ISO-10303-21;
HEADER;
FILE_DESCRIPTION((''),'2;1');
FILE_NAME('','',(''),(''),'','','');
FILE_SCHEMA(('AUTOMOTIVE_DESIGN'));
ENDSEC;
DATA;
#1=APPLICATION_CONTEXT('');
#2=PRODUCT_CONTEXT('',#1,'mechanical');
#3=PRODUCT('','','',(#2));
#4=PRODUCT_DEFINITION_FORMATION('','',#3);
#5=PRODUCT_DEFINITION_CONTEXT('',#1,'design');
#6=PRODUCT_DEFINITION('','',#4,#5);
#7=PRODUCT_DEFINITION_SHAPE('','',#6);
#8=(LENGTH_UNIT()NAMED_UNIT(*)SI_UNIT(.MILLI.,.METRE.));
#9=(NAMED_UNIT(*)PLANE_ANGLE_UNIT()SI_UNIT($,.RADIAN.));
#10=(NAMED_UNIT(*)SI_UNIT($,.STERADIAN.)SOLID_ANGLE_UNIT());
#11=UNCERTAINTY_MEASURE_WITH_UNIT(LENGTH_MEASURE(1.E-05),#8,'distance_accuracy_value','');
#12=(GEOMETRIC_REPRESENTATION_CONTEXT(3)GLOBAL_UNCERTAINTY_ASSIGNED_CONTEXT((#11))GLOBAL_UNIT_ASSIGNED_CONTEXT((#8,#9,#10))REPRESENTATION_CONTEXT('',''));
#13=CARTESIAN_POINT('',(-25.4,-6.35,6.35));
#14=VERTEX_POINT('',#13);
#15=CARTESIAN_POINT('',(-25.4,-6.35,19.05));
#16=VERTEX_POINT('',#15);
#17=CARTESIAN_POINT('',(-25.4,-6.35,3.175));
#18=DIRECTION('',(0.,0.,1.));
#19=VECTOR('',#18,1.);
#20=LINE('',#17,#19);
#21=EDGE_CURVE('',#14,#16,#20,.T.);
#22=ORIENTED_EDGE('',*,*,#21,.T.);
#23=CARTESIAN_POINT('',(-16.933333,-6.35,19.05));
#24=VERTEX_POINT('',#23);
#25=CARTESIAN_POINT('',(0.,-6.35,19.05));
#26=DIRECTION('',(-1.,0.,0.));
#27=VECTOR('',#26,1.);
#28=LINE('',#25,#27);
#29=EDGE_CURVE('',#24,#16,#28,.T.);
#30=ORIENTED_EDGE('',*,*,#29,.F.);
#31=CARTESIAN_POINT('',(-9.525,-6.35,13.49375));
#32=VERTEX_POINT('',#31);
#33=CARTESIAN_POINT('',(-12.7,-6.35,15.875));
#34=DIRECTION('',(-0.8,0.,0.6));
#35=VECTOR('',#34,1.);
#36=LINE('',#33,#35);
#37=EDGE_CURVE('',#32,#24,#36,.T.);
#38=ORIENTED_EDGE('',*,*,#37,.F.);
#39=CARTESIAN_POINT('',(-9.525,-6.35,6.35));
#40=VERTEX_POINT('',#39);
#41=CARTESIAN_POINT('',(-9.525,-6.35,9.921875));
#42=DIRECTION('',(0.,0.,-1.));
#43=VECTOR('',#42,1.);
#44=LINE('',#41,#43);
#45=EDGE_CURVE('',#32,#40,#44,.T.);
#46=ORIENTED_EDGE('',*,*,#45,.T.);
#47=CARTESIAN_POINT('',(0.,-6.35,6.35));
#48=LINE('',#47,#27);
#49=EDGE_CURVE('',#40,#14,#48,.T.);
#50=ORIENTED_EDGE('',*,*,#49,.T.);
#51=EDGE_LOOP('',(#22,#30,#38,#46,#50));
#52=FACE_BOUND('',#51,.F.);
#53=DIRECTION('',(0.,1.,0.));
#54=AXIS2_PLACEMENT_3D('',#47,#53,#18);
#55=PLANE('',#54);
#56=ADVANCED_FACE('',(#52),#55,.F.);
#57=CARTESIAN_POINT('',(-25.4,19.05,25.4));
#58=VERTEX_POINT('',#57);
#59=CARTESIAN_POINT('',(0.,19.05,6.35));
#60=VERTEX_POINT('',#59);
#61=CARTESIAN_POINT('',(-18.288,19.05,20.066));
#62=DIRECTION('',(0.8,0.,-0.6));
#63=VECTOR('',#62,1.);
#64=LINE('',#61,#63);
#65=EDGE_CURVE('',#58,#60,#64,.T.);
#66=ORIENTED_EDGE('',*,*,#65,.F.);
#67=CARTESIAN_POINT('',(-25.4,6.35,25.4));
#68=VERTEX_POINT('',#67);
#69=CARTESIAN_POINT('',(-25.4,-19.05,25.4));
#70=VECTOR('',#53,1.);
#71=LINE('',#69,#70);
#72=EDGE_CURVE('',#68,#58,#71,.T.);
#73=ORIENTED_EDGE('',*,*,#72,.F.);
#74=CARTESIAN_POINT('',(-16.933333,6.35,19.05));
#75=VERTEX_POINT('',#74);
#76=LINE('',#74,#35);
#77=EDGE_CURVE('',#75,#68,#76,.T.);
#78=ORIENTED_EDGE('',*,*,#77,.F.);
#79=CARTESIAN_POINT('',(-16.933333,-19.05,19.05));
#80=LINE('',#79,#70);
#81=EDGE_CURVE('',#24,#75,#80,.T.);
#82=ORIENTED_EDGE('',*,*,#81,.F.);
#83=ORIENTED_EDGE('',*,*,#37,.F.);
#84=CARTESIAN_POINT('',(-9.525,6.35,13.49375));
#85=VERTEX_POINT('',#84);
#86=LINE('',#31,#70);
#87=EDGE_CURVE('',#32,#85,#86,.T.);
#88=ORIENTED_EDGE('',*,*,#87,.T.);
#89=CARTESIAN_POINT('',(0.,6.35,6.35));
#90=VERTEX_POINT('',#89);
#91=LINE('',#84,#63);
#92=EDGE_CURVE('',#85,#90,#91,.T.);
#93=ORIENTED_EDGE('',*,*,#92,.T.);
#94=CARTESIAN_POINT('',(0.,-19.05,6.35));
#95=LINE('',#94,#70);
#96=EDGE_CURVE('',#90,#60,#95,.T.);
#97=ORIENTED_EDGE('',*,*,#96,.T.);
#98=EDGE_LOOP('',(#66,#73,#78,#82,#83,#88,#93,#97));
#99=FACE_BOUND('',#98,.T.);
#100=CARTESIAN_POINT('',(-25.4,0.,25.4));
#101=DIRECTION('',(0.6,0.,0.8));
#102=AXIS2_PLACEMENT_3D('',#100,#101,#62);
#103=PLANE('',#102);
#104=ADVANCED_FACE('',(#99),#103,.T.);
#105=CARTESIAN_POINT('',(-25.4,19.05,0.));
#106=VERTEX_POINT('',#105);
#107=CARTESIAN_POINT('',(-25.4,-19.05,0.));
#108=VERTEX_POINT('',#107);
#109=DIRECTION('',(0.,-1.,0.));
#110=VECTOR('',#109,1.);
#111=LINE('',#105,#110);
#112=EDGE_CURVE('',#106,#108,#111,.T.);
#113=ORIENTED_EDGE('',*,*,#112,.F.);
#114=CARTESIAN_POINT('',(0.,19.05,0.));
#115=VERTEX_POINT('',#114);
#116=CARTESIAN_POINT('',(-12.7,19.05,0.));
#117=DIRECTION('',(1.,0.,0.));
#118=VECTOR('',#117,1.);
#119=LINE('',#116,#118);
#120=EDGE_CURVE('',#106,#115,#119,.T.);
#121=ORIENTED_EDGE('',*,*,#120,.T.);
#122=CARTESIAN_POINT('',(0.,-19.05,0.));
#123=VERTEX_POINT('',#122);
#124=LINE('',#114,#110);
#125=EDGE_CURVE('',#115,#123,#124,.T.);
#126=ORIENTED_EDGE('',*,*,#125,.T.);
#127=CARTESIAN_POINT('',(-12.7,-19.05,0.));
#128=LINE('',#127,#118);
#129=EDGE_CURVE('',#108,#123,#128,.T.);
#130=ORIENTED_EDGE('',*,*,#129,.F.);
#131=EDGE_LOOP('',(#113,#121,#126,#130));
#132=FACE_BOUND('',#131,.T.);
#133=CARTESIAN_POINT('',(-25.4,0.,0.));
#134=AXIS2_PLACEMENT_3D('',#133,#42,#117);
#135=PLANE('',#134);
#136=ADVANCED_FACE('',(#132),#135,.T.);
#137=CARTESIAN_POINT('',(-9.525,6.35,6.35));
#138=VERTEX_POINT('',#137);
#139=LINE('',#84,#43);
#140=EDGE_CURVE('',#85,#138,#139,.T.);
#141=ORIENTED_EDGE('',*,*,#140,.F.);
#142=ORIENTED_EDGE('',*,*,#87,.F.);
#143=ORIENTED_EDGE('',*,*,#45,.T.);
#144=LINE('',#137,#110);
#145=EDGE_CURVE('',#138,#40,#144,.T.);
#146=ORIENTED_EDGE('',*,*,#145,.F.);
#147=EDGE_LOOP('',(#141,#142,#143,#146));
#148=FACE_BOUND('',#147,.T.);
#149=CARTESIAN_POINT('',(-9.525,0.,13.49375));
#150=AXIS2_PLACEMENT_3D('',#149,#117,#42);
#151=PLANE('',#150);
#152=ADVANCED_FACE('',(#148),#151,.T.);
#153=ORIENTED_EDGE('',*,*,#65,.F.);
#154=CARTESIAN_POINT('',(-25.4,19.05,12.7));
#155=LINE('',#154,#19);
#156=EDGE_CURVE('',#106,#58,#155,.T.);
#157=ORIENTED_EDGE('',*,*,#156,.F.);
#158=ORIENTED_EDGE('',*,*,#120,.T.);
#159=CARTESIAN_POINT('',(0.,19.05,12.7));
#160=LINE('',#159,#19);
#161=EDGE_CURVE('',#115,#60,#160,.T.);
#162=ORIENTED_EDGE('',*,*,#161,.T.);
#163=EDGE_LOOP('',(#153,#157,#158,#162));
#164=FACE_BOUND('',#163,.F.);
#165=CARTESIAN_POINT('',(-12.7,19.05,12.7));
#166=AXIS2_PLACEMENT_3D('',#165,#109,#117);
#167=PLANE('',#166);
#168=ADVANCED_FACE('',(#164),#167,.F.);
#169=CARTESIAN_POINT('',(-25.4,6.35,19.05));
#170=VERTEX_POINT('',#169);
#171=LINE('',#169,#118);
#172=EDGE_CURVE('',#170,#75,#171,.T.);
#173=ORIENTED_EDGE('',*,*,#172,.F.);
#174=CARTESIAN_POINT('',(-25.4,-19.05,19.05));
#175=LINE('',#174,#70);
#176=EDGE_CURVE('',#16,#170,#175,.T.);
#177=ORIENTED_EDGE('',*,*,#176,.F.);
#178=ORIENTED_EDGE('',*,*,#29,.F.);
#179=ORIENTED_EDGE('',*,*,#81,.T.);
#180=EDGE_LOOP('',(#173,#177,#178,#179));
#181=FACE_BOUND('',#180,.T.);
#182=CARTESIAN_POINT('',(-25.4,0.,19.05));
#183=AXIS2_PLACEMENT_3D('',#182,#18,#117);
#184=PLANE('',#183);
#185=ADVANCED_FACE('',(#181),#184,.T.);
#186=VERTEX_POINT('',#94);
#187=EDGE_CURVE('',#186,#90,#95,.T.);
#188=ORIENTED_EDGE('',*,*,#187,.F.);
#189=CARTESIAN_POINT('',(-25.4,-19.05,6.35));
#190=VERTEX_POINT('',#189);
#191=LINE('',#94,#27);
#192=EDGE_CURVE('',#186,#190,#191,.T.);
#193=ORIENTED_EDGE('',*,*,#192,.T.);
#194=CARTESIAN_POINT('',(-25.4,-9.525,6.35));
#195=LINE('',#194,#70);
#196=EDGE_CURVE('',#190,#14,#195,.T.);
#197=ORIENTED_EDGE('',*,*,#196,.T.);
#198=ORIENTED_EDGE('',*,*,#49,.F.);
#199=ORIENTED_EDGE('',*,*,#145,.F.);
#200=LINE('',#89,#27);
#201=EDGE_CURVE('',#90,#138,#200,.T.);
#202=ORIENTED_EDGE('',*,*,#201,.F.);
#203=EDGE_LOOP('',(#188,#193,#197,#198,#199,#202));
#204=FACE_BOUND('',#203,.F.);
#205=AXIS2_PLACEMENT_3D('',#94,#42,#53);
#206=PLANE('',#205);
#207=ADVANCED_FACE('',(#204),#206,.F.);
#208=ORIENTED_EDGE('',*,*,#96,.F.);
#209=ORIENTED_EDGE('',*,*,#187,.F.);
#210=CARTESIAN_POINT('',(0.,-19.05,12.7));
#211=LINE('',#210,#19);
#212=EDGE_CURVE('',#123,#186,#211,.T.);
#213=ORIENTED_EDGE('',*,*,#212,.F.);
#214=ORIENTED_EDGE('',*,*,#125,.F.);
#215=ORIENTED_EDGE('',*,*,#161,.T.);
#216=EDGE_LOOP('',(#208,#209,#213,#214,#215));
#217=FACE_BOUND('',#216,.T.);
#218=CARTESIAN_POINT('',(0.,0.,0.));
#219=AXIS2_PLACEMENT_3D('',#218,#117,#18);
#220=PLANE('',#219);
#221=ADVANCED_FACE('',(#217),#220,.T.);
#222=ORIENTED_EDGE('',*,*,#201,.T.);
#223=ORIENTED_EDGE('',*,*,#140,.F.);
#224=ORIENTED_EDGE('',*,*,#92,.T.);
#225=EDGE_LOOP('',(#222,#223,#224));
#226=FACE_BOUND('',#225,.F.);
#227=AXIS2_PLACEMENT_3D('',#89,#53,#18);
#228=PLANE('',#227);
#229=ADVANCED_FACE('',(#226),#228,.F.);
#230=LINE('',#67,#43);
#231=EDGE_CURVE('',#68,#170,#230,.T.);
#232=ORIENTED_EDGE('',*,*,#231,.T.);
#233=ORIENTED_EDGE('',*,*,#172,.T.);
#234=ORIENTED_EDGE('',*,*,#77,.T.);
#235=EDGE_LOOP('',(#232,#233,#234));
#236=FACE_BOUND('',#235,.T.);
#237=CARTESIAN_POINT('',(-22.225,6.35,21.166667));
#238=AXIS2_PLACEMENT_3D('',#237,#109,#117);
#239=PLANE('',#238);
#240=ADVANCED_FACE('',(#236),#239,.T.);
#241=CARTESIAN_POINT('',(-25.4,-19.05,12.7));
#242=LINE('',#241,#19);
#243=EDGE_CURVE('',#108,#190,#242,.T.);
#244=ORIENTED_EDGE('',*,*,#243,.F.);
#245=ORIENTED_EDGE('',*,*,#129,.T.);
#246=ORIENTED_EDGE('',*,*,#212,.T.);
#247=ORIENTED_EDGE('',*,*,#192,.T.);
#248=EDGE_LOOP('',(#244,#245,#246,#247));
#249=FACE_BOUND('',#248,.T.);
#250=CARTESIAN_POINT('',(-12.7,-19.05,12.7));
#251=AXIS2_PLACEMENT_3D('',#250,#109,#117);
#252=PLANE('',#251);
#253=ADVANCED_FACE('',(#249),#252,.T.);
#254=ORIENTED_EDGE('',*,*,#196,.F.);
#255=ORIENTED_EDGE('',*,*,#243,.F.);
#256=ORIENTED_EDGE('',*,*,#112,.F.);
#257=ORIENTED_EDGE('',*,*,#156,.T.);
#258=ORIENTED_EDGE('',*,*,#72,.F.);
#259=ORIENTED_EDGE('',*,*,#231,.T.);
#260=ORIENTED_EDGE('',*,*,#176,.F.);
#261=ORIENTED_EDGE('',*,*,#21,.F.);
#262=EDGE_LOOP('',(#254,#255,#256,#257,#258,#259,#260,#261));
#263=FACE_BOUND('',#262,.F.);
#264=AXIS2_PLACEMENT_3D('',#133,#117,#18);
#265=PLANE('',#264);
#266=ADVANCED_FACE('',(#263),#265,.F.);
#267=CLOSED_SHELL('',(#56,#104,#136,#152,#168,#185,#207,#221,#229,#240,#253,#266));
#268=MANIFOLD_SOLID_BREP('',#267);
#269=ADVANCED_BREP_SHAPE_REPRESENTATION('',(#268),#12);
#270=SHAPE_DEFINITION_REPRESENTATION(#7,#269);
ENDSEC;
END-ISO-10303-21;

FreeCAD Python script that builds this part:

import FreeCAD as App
import Part
import Sketcher
Q = App.Units.Quantity


def add_polygon(sketch, points):
    """Adds a closed chain of lines whose ends are joined by coincident constraints."""
    first, n = sketch.GeometryCount, len(points)
    for a, b in zip(points, points[1:] + points[:1]):
        sketch.addGeometry(Part.LineSegment(App.Vector(*a, 0), App.Vector(*b, 0)), False)
    for i in range(n):
        sketch.addConstraint(Sketcher.Constraint("Coincident", first + i, 2, first + (i + 1) % n, 1))

doc = App.newDocument("Part")
params = doc.addObject("Spreadsheet::Sheet", "Params")
for row, (alias, value) in enumerate([
    ("sketch1_width", "1 in"),
    ("pad1_length", "1.5 in"),
    ("sketch2_width", "1 in"),
    ("sketch2_height", "0.75 in"),
    ("sketch3_height", "0.25 in"),
    ("pocket2_length", "1 in"),
    ("pocket2_length2", "0.25 in"),
    ("sketch4_width", "0.5 in"),
    ("sketch5_width", "0.25 in"),
    ("pocket4_length", "0.375 in"),
    ("sketch6_width", "0.375 in"),
    ("sketch6_height", "0.28125 in"),
    ("pocket5_length", "1 in"),
    ("pocket5_length2", "0.25 in"),
], start=1):
    params.set(f"A{row}", alias)
    params.set(f"B{row}", "=" + value)
    params.setAlias(f"B{row}", alias)

body = doc.addObject("PartDesign::Body", "Body")

# Sketch on XZ plane
sketch1 = body.newObject("Sketcher::SketchObject", "Sketch")
sketch1.AttachmentSupport = (doc.getObject("XZ_Plane"), [""])
sketch1.MapMode = "FlatFace"
add_polygon(sketch1, [(-25, 25), (-25, 0), (0, 0), (0, 25)])  # lines 0-3
sketch1.addConstraint([
    Sketcher.Constraint("Vertical", 0),
    Sketcher.Constraint("Horizontal", 1),
    Sketcher.Constraint("Vertical", 2),
    Sketcher.Constraint("Horizontal", 3),
    Sketcher.Constraint("Coincident", 1, 2, -1, 1),
    Sketcher.Constraint("Equal", 3, 0),
    Sketcher.Constraint("DistanceX", 1, 1, 1, 2, Q("1 in")),
])
sketch1.setExpression("Constraints[10]", "Params.sketch1_width")
pad1 = body.newObject("PartDesign::Pad", "Pad")
pad1.Profile = sketch1
pad1.setExpression("Length", "Params.pad1_length")
pad1.Midplane = True

# Sketch on XZ plane
sketch2 = body.newObject("Sketcher::SketchObject", "Sketch001")
sketch2.AttachmentSupport = (doc.getObject("XZ_Plane"), [""])
sketch2.MapMode = "FlatFace"
add_polygon(sketch2, [(-25, 25), (0, 6), (0, 25)])  # lines 0-2
sketch2.addConstraint([
    Sketcher.Constraint("Vertical", 1),
    Sketcher.Constraint("Horizontal", 2),
    Sketcher.Constraint("PointOnObject", 0, 2, -2),
    Sketcher.Constraint("DistanceX", 2, 2, 2, 1, Q("1 in")),
    Sketcher.Constraint("DistanceY", -1, 1, 1, 2, Q("1 in")),
    Sketcher.Constraint("DistanceY", 1, 1, 1, 2, Q("0.75 in")),
])
sketch2.setExpression("Constraints[6]", "Params.sketch2_width")
sketch2.setExpression("Constraints[8]", "Params.sketch2_height")
pocket1 = body.newObject("PartDesign::Pocket", "Pocket")
pocket1.Profile = sketch2
pocket1.Type = "ThroughAll"
pocket1.Midplane = True

# Sketch on XZ plane
sketch3 = body.newObject("Sketcher::SketchObject", "Sketch002")
sketch3.AttachmentSupport = (doc.getObject("XZ_Plane"), [""])
sketch3.MapMode = "FlatFace"
add_polygon(sketch3, [(-25, 25), (-25, 19), (-17, 19)])  # lines 0-2
sketch3.addConstraint([
    Sketcher.Constraint("Vertical", 0),
    Sketcher.Constraint("Horizontal", 1),
    Sketcher.Constraint("DistanceX", 0, 2, -1, 1, Q("1 in")),
    Sketcher.Constraint("DistanceY", -1, 1, 2, 2, Q("1 in")),
    Sketcher.Constraint("DistanceY", 0, 2, 0, 1, Q("0.25 in")),
    Sketcher.Constraint("DistanceX", 1, 1, 1, 2, Q("8.466667 mm")),
])
sketch3.setExpression("Constraints[7]", "Params.sketch3_height")
pocket2 = body.newObject("PartDesign::Pocket", "Pocket001")
pocket2.Profile = sketch3
pocket2.Type = "TwoLengths"
pocket2.setExpression("Length", "Params.pocket2_length")
pocket2.setExpression("Length2", "Params.pocket2_length2")
pocket2.Reversed = True

# Sketch on YZ plane
sketch4 = body.newObject("Sketcher::SketchObject", "Sketch003")
sketch4.AttachmentSupport = (doc.getObject("YZ_Plane"), [""])
sketch4.MapMode = "FlatFace"
add_polygon(sketch4, [(-19, 19), (-19, 6), (-6, 6), (-6, 19)])  # lines 0-3
sketch4.addConstraint([
    Sketcher.Constraint("Vertical", 0),
    Sketcher.Constraint("Horizontal", 1),
    Sketcher.Constraint("Vertical", 2),
    Sketcher.Constraint("Horizontal", 3),
    Sketcher.Constraint("Equal", 3, 0),
    Sketcher.Constraint("DistanceX", 1, 1, 1, 2, Q("0.5 in")),
    Sketcher.Constraint("DistanceX", 0, 2, -1, 1, Q("0.75 in")),
    Sketcher.Constraint("DistanceY", -1, 1, 0, 2, Q("0.25 in")),
])
sketch4.setExpression("Constraints[9]", "Params.sketch4_width")
pocket3 = body.newObject("PartDesign::Pocket", "Pocket002")
pocket3.Profile = sketch4
pocket3.Type = "ThroughAll"

# Sketch on YZ plane
sketch5 = body.newObject("Sketcher::SketchObject", "Sketch004")
sketch5.AttachmentSupport = (doc.getObject("YZ_Plane"), [""])
sketch5.MapMode = "FlatFace"
add_polygon(sketch5, [(0, 13), (0, 6), (6, 6), (6, 13)])  # lines 0-3
sketch5.addConstraint([
    Sketcher.Constraint("Vertical", 0),
    Sketcher.Constraint("Horizontal", 1),
    Sketcher.Constraint("Vertical", 2),
    Sketcher.Constraint("Horizontal", 3),
    Sketcher.Constraint("PointOnObject", 0, 2, -2),
    Sketcher.Constraint("Equal", 3, 0),
    Sketcher.Constraint("DistanceX", 1, 1, 1, 2, Q("0.25 in")),
    Sketcher.Constraint("DistanceY", -1, 1, 2, 2, Q("0.5 in")),
])
sketch5.setExpression("Constraints[10]", "Params.sketch5_width")
pocket4 = body.newObject("PartDesign::Pocket", "Pocket003")
pocket4.Profile = sketch5
pocket4.setExpression("Length", "Params.pocket4_length")
pocket4.Midplane = True

# Sketch on XZ plane
sketch6 = body.newObject("Sketcher::SketchObject", "Sketch005")
sketch6.AttachmentSupport = (doc.getObject("XZ_Plane"), [""])
sketch6.MapMode = "FlatFace"
add_polygon(sketch6, [(0, 6), (-10, 13), (-10, 6)])  # lines 0-2
sketch6.addConstraint([
    Sketcher.Constraint("Vertical", 1),
    Sketcher.Constraint("Horizontal", 2),
    Sketcher.Constraint("PointOnObject", 2, 2, -2),
    Sketcher.Constraint("DistanceX", 2, 1, 2, 2, Q("0.375 in")),
    Sketcher.Constraint("DistanceY", 1, 2, 1, 1, Q("0.28125 in")),
    Sketcher.Constraint("DistanceY", -1, 1, 1, 2, Q("0.25 in")),
])
sketch6.setExpression("Constraints[6]", "Params.sketch6_width")
sketch6.setExpression("Constraints[7]", "Params.sketch6_height")
pocket5 = body.newObject("PartDesign::Pocket", "Pocket004")
pocket5.Profile = sketch6
pocket5.Type = "TwoLengths"
pocket5.setExpression("Length", "Params.pocket5_length")
pocket5.setExpression("Length2", "Params.pocket5_length2")
pocket5.Reversed = True

doc.recompute()
